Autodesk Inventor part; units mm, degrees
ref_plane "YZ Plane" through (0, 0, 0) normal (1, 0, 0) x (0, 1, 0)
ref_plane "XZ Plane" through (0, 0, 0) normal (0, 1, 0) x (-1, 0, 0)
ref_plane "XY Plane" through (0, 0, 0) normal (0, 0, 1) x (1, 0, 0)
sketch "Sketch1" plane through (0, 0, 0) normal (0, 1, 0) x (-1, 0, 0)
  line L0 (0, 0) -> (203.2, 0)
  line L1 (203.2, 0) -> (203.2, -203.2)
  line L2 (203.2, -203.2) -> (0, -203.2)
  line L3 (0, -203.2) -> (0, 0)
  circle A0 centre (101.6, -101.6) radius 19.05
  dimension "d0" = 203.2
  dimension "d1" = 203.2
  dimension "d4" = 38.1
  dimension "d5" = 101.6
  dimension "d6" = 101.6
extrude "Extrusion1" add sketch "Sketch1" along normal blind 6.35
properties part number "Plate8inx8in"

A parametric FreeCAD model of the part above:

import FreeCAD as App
import Part
import Sketcher

V = App.Vector
Q = App.Units.Quantity


def add_polygon(sketch, points):
    """Adds a closed chain of lines whose ends are joined by coincident constraints."""
    first, n = sketch.GeometryCount, len(points)
    for a, b in zip(points, points[1:] + points[:1]):
        sketch.addGeometry(Part.LineSegment(App.Vector(*a, 0), App.Vector(*b, 0)), False)
    for i in range(n):
        sketch.addConstraint(Sketcher.Constraint("Coincident", first + i, 2, first + (i + 1) % n, 1))

doc = App.newDocument("Part")
body = doc.addObject("PartDesign::Body", "Body")

# Sketch on XZ plane
sketch1 = doc.addObject("Sketcher::SketchObject", "Sketch")
body.addObject(sketch1)
sketch1.AttachmentSupport = (doc.XZ_Plane, [""])
sketch1.MapMode = "FlatFace"
add_polygon(sketch1, [(-203, 0), (0, 0), (0, -203), (-203, -203)])  # lines 0-3
sketch1.addGeometry(Part.Circle(V(-102, -102, 0), V(0, 0, 1), 19), False)  # 4
sketch1.addConstraint(Sketcher.Constraint("Horizontal", 0))
sketch1.addConstraint(Sketcher.Constraint("Vertical", 1))
sketch1.addConstraint(Sketcher.Constraint("Horizontal", 2))
sketch1.addConstraint(Sketcher.Constraint("Vertical", 3))
sketch1.addConstraint(Sketcher.Constraint("Coincident", 0, 2, -1, 1))
sketch1.addConstraint(Sketcher.Constraint("Equal", 2, 1))
sketch1.addConstraint(Sketcher.Constraint("Diameter", 4, Q("1.5 in")))
sketch1.addConstraint(Sketcher.Constraint("DistanceX", 0, 1, 0, 2, Q("8 in")))
sketch1.addConstraint(Sketcher.Constraint("DistanceX", 4, 3, -1, 1, Q("4 in")))
sketch1.addConstraint(Sketcher.Constraint("DistanceY", 4, 3, -1, 1, Q("4 in")))
pad1 = doc.addObject("PartDesign::Pad", "Pad")
body.addObject(pad1)
pad1.Profile = sketch1
pad1.Length = Q("0.25 in")
pad1.Reversed = True

doc.recompute()
